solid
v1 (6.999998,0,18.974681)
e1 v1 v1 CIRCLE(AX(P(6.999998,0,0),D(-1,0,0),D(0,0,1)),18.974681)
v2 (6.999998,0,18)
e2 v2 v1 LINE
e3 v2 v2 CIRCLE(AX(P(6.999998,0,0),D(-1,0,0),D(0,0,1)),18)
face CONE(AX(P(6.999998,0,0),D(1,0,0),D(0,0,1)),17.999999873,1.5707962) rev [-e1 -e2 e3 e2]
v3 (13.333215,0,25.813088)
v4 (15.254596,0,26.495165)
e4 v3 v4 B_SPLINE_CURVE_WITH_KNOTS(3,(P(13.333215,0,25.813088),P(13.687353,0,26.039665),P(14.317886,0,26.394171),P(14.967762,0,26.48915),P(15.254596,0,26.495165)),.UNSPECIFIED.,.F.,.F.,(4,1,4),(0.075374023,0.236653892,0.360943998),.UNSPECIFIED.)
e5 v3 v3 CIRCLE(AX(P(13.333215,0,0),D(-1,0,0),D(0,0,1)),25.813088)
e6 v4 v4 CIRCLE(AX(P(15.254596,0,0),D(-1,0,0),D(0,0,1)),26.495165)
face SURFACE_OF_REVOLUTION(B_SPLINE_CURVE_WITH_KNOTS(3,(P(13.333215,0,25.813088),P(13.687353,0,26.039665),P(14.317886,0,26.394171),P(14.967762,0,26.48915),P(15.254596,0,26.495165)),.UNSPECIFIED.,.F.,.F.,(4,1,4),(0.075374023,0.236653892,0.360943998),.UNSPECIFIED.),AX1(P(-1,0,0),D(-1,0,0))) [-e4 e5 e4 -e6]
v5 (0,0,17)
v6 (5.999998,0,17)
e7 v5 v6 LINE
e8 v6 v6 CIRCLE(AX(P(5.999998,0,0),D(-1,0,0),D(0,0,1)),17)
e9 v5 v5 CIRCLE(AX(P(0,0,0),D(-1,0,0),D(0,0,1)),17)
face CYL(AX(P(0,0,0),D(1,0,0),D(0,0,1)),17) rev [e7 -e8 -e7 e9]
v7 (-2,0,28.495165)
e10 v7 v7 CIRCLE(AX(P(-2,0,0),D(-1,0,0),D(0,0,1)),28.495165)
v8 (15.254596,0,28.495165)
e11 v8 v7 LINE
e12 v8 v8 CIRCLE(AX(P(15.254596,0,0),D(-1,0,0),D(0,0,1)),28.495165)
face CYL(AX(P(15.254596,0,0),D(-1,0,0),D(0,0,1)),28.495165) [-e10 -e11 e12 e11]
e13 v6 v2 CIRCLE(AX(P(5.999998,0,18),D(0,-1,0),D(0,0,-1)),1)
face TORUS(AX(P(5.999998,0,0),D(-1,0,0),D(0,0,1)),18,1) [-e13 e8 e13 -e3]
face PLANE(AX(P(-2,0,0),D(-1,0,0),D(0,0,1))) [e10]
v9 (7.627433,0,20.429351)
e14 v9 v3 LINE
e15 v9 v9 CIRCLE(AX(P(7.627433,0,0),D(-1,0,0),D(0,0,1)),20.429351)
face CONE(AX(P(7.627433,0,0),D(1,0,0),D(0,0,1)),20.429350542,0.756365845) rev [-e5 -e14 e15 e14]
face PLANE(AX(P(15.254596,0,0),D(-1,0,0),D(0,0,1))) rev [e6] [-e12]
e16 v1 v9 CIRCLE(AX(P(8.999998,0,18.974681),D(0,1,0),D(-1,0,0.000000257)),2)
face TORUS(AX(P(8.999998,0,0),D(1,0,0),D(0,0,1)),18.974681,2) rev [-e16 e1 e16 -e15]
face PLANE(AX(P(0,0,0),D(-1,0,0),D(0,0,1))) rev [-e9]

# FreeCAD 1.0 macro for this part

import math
import FreeCAD as App
import Part
import Sketcher
from FreeCAD import Vector
Q = App.Units.Quantity

doc = App.newDocument("Part")
params = doc.addObject("Spreadsheet::Sheet", "Params")
for row, (alias, value) in enumerate([
    ("sketch1_radius", "1 mm"),
    ("sketch1_radius2", "2 mm"),
    ("sketch1_width", "2 mm"),
    ("sketch1_width2", "5.999998 mm"),
    ("sketch1_height", "17 mm"),
    ("revolution_angle", "360 deg"),
], start=1):
    params.set(f"A{row}", alias)
    params.set(f"B{row}", "=" + value)
    params.setAlias(f"B{row}", alias)

body = doc.addObject("PartDesign::Body", "Body")

# Sketch on XZ plane
sketch1 = body.newObject("Sketcher::SketchObject", "Sketch")
sketch1.AttachmentSupport = (doc.getObject("XZ_Plane"), [""])
sketch1.MapMode = "FlatFace"
sketch1.addGeometry([
    Part.LineSegment(Vector(7.627433, 20.429351, 0), Vector(13.333215, 25.813088, 0)),  # 0
    Part.BSplineCurve([Vector(13.333215, 25.813088, 0), Vector(13.687353, 26.039665, 0), Vector(14.317886, 26.394171, 0), Vector(14.967762, 26.48915, 0), Vector(15.254596, 26.495165, 0)], [4, 1, 4], [0.075374023, 0.236653892, 0.360943998], False, 3, [1, 1, 1, 1, 1], False),  # 1
    Part.LineSegment(Vector(15.254596, 26.495165, 0), Vector(15.254596, 28.495165, 0)),  # 2
    Part.LineSegment(Vector(15.254596, 28.495165, 0), Vector(-2, 28.495165, 0)),  # 3
    Part.LineSegment(Vector(-2, 28.495165, 0), Vector(-2, 0, 0)),  # 4
    Part.LineSegment(Vector(-2, 0, 0), Vector(0, 0, 0)),  # 5
    Part.LineSegment(Vector(0, 0, 0), Vector(0, 17, 0)),  # 6
    Part.LineSegment(Vector(0, 17, 0), Vector(5.999998, 17, 0)),  # 7
    Part.ArcOfCircle(Part.Circle(Vector(5.999998, 18, 0), Vector(0, 0, 1), 1), math.radians(-90), math.radians(-0.000007)),  # 8
    Part.LineSegment(Vector(6.999998, 18, 0), Vector(6.999998, 18.974681, 0)),  # 9
    Part.ArcOfCircle(Part.Circle(Vector(8.999998, 18.974681, 0), Vector(0, 0, 1), 2), math.radians(133.336571), math.radians(179.999985)),  # 10
], False)
sketch1.addConstraint([
    Sketcher.Constraint("Block", 1),
    Sketcher.Constraint("Coincident", 0, 2, 1, 1),
    Sketcher.Constraint("Coincident", 1, 2, 2, 1),
    Sketcher.Constraint("Coincident", 2, 2, 3, 1),
    Sketcher.Constraint("Coincident", 3, 2, 4, 1),
    Sketcher.Constraint("Coincident", 4, 2, 5, 1),
    Sketcher.Constraint("Coincident", 5, 2, 6, 1),
    Sketcher.Constraint("Coincident", 6, 2, 7, 1),
    Sketcher.Constraint("Tangent", 7, 2, 8, 1),
    Sketcher.Constraint("Tangent", 8, 2, 9, 1),
    Sketcher.Constraint("Tangent", 9, 2, 10, 2),
    Sketcher.Constraint("Tangent", 10, 1, 0, 1),
    Sketcher.Constraint("Vertical", 2),
    Sketcher.Constraint("Horizontal", 3),
    Sketcher.Constraint("Vertical", 4),
    Sketcher.Constraint("Horizontal", 5),
    Sketcher.Constraint("Vertical", 6),
    Sketcher.Constraint("Horizontal", 7),
    Sketcher.Constraint("Vertical", 9),
    Sketcher.Constraint("Coincident", 5, 2, -1, 1),
    Sketcher.Constraint("Equal", 5, 2),
    Sketcher.Constraint("Radius", 8, Q("1 mm")),
    Sketcher.Constraint("Radius", 10, Q("2 mm")),
    Sketcher.Constraint("DistanceX", 5, 1, 5, 2, Q("2 mm")),
    Sketcher.Constraint("DistanceX", 7, 1, 7, 2, Q("5.999998 mm")),
    Sketcher.Constraint("DistanceY", 6, 1, 6, 2, Q("17 mm")),
    Sketcher.Constraint("DistanceY", 9, 1, 9, 2, Q("0.974681 mm")),
])
sketch1.setExpression("Constraints[21]", "Params.sketch1_radius")
sketch1.setExpression("Constraints[22]", "Params.sketch1_radius2")
sketch1.setExpression("Constraints[23]", "Params.sketch1_width")
sketch1.setExpression("Constraints[24]", "Params.sketch1_width2")
sketch1.setExpression("Constraints[25]", "Params.sketch1_height")
revolution = body.newObject("PartDesign::Revolution", "Revolution")
revolution.Profile = sketch1
revolution.ReferenceAxis = (sketch1, ["H_Axis"])
revolution.setExpression("Angle", "Params.revolution_angle")

doc.recompute()
